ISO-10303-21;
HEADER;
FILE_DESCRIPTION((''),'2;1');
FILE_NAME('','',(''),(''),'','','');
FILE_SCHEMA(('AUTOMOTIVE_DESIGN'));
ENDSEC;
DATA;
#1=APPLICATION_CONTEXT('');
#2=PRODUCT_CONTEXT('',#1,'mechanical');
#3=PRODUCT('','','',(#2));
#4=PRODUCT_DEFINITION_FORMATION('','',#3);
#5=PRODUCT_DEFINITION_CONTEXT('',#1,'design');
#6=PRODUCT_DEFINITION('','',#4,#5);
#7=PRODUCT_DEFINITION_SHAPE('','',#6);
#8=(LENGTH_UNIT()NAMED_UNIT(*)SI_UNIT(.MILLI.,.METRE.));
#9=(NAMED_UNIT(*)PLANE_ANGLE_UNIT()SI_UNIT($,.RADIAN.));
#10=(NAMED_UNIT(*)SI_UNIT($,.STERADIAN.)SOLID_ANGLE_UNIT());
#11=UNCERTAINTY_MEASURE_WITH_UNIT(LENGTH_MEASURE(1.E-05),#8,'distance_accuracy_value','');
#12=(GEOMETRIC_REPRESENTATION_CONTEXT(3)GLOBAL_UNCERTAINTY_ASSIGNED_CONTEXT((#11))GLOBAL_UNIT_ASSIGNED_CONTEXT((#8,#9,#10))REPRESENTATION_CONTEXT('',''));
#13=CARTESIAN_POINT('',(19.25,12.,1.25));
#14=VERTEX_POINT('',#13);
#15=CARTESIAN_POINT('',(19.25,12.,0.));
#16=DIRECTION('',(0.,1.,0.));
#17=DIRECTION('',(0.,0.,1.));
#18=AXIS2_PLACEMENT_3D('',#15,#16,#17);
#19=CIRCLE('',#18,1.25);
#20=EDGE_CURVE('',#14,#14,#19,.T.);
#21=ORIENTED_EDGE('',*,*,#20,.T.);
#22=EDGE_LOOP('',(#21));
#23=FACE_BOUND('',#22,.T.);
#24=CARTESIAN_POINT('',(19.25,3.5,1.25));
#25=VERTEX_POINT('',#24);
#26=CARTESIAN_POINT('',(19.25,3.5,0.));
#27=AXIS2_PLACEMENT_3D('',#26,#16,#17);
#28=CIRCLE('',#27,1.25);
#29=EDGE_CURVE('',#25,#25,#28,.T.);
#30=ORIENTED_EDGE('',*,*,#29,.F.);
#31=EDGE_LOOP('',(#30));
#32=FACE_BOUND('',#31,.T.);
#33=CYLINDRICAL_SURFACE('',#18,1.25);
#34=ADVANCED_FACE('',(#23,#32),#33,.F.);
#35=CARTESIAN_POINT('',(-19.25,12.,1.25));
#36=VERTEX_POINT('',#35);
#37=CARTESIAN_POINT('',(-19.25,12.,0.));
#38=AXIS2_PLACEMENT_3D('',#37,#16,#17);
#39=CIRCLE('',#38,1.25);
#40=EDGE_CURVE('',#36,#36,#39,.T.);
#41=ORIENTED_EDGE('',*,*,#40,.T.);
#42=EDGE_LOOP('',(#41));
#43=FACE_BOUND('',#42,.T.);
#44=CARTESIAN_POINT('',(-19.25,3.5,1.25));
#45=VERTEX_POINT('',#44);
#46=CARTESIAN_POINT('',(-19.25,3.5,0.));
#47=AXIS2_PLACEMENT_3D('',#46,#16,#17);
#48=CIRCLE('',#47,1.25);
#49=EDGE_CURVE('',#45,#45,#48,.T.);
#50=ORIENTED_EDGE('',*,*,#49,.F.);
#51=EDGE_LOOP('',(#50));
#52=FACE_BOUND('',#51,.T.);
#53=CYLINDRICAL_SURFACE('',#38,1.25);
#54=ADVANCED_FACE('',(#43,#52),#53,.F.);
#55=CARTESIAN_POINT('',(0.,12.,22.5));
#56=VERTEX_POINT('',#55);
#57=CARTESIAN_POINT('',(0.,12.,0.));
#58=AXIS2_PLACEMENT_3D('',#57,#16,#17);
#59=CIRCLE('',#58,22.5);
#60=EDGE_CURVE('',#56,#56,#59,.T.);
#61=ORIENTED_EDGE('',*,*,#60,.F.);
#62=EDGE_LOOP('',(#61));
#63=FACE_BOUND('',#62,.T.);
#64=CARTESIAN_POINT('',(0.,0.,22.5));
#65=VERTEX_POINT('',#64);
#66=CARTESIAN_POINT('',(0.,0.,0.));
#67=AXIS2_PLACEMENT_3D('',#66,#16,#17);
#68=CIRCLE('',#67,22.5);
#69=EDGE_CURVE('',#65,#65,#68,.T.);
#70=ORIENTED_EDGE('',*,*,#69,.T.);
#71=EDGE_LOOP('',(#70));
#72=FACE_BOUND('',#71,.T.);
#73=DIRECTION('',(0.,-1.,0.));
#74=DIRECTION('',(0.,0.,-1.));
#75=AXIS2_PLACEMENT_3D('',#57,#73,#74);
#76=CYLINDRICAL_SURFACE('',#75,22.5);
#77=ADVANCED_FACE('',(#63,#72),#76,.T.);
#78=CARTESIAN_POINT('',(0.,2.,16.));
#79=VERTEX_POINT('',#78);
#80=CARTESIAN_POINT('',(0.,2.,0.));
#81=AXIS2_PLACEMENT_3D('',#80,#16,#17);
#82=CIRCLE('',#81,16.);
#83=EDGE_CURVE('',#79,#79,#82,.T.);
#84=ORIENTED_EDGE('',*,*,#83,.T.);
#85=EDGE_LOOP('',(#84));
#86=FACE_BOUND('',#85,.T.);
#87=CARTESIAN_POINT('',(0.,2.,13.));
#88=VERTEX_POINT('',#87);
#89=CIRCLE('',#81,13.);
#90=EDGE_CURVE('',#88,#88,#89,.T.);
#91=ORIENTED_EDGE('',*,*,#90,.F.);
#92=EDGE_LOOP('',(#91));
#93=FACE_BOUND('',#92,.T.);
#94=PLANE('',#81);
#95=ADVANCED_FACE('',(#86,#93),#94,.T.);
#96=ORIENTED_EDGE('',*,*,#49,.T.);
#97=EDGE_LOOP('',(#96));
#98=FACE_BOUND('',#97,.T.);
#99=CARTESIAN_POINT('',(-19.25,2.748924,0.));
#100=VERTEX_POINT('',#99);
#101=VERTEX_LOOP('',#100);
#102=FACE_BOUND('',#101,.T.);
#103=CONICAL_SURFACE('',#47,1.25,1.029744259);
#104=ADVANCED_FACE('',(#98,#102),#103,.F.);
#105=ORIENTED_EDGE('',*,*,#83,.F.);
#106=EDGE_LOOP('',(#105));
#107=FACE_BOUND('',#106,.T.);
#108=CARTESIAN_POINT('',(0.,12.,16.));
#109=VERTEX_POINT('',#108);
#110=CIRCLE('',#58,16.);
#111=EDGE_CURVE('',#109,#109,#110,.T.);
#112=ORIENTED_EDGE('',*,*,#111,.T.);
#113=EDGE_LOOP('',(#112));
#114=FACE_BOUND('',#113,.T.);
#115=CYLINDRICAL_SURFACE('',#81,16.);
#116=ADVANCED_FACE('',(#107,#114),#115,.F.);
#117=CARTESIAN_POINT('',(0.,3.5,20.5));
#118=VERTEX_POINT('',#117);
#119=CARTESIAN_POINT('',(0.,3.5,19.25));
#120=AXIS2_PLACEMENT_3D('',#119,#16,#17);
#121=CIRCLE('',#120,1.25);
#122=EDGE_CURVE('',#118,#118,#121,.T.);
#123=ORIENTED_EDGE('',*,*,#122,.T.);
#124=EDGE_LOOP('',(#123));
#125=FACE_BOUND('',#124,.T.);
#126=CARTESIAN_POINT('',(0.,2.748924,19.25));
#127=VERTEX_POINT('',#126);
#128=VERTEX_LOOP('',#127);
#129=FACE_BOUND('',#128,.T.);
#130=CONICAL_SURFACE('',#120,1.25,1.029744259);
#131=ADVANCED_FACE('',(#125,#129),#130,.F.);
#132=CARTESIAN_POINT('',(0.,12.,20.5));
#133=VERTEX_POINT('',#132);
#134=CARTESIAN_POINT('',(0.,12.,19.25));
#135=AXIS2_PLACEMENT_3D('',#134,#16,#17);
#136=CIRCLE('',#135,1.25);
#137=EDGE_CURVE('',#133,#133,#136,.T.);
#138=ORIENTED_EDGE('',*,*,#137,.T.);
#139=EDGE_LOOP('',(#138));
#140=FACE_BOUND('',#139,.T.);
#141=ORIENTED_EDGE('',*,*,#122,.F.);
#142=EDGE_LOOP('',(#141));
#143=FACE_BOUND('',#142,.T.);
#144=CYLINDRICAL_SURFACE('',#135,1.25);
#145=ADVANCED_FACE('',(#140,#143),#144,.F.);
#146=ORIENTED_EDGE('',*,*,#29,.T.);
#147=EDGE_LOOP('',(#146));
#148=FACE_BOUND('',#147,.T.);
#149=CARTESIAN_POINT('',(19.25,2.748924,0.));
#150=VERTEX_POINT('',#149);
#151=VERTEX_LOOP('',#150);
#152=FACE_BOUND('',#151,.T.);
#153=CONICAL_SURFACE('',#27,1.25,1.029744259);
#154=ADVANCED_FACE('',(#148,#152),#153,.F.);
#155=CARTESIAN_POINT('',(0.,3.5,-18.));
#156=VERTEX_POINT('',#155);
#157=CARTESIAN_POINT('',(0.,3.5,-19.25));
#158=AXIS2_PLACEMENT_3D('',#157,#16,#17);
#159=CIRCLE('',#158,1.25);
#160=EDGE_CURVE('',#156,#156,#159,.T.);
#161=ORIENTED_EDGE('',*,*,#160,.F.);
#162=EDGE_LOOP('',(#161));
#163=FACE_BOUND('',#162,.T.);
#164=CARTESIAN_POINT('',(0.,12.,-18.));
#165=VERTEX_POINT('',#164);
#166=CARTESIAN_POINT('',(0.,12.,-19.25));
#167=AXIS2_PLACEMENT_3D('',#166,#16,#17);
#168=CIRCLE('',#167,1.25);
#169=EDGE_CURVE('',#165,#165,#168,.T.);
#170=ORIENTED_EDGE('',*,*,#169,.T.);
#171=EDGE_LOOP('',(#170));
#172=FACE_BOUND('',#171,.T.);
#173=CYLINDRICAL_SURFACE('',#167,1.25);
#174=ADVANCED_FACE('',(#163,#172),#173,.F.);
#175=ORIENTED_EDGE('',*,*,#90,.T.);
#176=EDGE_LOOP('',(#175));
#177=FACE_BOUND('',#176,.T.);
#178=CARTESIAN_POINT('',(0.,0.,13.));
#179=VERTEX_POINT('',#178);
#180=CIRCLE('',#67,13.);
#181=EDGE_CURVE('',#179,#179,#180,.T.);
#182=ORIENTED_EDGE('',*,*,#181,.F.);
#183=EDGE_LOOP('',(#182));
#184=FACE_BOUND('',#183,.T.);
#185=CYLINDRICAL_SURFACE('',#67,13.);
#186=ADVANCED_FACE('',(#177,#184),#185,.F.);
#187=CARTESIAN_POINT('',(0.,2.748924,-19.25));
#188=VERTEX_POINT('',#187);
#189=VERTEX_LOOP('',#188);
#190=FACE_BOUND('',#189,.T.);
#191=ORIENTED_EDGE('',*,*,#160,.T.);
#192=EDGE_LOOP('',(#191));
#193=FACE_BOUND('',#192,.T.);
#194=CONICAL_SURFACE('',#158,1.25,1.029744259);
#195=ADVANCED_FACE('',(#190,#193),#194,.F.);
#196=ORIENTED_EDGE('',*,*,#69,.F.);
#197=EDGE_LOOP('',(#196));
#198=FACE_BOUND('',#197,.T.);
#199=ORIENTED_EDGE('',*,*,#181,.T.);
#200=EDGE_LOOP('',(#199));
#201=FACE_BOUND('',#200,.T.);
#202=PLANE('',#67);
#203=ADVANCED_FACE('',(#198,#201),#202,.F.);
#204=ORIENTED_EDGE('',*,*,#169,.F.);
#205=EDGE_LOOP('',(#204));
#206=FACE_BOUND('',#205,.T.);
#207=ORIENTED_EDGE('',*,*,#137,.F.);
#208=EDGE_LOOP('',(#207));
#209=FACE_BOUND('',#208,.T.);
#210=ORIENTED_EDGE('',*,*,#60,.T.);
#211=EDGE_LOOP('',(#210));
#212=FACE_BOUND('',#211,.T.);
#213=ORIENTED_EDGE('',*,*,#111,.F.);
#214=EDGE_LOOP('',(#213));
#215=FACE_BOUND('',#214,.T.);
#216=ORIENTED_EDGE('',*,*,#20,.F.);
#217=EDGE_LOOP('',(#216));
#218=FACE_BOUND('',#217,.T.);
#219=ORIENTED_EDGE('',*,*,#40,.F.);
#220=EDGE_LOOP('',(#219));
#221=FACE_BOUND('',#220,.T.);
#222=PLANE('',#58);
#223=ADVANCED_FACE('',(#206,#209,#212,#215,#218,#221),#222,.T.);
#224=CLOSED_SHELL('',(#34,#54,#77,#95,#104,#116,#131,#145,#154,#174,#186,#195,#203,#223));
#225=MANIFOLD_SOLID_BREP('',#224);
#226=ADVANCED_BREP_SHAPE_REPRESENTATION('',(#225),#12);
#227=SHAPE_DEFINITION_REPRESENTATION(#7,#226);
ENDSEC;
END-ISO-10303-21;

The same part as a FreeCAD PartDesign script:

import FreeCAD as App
import Part
import Sketcher
from FreeCAD import Vector

doc = App.newDocument("Part")
body = doc.addObject("PartDesign::Body", "Body")

# Sketch on XZ plane
sketch1 = body.newObject("Sketcher::SketchObject", "Sketch")
sketch1.AttachmentSupport = (doc.getObject("XZ_Plane"), [""])
sketch1.MapMode = "FlatFace"
sketch1.addGeometry(Part.Circle(Vector(0, 0, 0), Vector(0, 0, 1), 22.5), False)
sketch1.addConstraint(Sketcher.Constraint("Coincident", 0, 3, -1, 1))
sketch1.addConstraint(Sketcher.Constraint("Diameter", 0, 45.0))
pad1 = body.newObject("PartDesign::Pad", "Pad")
pad1.Profile = sketch1
pad1.Length = 12
pad1.Reversed = True

# Sketch on XZ plane
sketch2 = body.newObject("Sketcher::SketchObject", "Sketch001")
sketch2.AttachmentSupport = (doc.getObject("XZ_Plane"), [""])
sketch2.MapMode = "FlatFace"
sketch2.AttachmentOffset = App.Placement(Vector(0, 0, -12), App.Rotation())
sketch2.addGeometry(Part.Circle(Vector(0, 0, 0), Vector(0, 0, 1), 16), False)
sketch2.addConstraint(Sketcher.Constraint("Coincident", 0, 3, -1, 1))
sketch2.addConstraint(Sketcher.Constraint("Diameter", 0, 32.0))
pocket1 = body.newObject("PartDesign::Pocket", "Pocket")
pocket1.Profile = sketch2
pocket1.Length = 10
pocket1.Reversed = True

# Sketch on XZ plane
sketch3 = body.newObject("Sketcher::SketchObject", "Sketch002")
sketch3.AttachmentSupport = (doc.getObject("XZ_Plane"), [""])
sketch3.MapMode = "FlatFace"
sketch3.AttachmentOffset = App.Placement(Vector(0, 0, -2), App.Rotation())
sketch3.addGeometry(Part.Circle(Vector(0, 0, 0), Vector(0, 0, 1), 13), False)
sketch3.addConstraint(Sketcher.Constraint("Coincident", 0, 3, -1, 1))
sketch3.addConstraint(Sketcher.Constraint("Diameter", 0, 26.0))
pocket2 = body.newObject("PartDesign::Pocket", "Pocket001")
pocket2.Profile = sketch3
pocket2.Type = "ThroughAll"
pocket2.Reversed = True

# Sketch on XZ plane
sketch4 = body.newObject("Sketcher::SketchObject", "Sketch003")
sketch4.AttachmentSupport = (doc.getObject("XZ_Plane"), [""])
sketch4.MapMode = "FlatFace"
sketch4.AttachmentOffset = App.Placement(Vector(0, 0, -12), App.Rotation())
sketch4.addGeometry(Part.Circle(Vector(-19.25, 0, 0), Vector(0, 0, 1), 1.25), False)
sketch4.addGeometry(Part.Circle(Vector(0, 19.25, 0), Vector(0, 0, 1), 1.25), False)
sketch4.addGeometry(Part.Circle(Vector(19.25, 0, 0), Vector(0, 0, 1), 1.25), False)
sketch4.addGeometry(Part.Circle(Vector(0, -19.25, 0), Vector(0, 0, 1), 1.25), False)
sketch4.addConstraint(Sketcher.Constraint("Equal", 0, 1))
sketch4.addConstraint(Sketcher.Constraint("Equal", 1, 2))
sketch4.addConstraint(Sketcher.Constraint("Equal", 2, 3))
sketch4.addConstraint(Sketcher.Constraint("Symmetric", 0, 3, 2, 3, -1, 1))
sketch4.addConstraint(Sketcher.Constraint("Symmetric", 1, 3, 3, 3, -1, 1))
sketch4.addConstraint(Sketcher.Constraint("PointOnObject", 0, 3, -1))
sketch4.addConstraint(Sketcher.Constraint("PointOnObject", 1, 3, -2))
sketch4.addConstraint(Sketcher.Constraint("Diameter", 0, 2.5))
sketch4.addConstraint(Sketcher.Constraint("DistanceX", 0, 3, 2, 3, 38.5))
sketch4.addConstraint(Sketcher.Constraint("DistanceY", 3, 3, 1, 3, 38.5))
doc.recompute()
hole = body.newObject("PartDesign::Hole", "Hole")
hole.Profile = sketch4
hole.ThreadType = "None"
hole.Diameter = 2.5
hole.DepthType = "Dimension"
hole.Depth = 8.5
hole.DrillPoint = "Angled"
hole.DrillPointAngle = 118
hole.Reversed = True

doc.recompute()
